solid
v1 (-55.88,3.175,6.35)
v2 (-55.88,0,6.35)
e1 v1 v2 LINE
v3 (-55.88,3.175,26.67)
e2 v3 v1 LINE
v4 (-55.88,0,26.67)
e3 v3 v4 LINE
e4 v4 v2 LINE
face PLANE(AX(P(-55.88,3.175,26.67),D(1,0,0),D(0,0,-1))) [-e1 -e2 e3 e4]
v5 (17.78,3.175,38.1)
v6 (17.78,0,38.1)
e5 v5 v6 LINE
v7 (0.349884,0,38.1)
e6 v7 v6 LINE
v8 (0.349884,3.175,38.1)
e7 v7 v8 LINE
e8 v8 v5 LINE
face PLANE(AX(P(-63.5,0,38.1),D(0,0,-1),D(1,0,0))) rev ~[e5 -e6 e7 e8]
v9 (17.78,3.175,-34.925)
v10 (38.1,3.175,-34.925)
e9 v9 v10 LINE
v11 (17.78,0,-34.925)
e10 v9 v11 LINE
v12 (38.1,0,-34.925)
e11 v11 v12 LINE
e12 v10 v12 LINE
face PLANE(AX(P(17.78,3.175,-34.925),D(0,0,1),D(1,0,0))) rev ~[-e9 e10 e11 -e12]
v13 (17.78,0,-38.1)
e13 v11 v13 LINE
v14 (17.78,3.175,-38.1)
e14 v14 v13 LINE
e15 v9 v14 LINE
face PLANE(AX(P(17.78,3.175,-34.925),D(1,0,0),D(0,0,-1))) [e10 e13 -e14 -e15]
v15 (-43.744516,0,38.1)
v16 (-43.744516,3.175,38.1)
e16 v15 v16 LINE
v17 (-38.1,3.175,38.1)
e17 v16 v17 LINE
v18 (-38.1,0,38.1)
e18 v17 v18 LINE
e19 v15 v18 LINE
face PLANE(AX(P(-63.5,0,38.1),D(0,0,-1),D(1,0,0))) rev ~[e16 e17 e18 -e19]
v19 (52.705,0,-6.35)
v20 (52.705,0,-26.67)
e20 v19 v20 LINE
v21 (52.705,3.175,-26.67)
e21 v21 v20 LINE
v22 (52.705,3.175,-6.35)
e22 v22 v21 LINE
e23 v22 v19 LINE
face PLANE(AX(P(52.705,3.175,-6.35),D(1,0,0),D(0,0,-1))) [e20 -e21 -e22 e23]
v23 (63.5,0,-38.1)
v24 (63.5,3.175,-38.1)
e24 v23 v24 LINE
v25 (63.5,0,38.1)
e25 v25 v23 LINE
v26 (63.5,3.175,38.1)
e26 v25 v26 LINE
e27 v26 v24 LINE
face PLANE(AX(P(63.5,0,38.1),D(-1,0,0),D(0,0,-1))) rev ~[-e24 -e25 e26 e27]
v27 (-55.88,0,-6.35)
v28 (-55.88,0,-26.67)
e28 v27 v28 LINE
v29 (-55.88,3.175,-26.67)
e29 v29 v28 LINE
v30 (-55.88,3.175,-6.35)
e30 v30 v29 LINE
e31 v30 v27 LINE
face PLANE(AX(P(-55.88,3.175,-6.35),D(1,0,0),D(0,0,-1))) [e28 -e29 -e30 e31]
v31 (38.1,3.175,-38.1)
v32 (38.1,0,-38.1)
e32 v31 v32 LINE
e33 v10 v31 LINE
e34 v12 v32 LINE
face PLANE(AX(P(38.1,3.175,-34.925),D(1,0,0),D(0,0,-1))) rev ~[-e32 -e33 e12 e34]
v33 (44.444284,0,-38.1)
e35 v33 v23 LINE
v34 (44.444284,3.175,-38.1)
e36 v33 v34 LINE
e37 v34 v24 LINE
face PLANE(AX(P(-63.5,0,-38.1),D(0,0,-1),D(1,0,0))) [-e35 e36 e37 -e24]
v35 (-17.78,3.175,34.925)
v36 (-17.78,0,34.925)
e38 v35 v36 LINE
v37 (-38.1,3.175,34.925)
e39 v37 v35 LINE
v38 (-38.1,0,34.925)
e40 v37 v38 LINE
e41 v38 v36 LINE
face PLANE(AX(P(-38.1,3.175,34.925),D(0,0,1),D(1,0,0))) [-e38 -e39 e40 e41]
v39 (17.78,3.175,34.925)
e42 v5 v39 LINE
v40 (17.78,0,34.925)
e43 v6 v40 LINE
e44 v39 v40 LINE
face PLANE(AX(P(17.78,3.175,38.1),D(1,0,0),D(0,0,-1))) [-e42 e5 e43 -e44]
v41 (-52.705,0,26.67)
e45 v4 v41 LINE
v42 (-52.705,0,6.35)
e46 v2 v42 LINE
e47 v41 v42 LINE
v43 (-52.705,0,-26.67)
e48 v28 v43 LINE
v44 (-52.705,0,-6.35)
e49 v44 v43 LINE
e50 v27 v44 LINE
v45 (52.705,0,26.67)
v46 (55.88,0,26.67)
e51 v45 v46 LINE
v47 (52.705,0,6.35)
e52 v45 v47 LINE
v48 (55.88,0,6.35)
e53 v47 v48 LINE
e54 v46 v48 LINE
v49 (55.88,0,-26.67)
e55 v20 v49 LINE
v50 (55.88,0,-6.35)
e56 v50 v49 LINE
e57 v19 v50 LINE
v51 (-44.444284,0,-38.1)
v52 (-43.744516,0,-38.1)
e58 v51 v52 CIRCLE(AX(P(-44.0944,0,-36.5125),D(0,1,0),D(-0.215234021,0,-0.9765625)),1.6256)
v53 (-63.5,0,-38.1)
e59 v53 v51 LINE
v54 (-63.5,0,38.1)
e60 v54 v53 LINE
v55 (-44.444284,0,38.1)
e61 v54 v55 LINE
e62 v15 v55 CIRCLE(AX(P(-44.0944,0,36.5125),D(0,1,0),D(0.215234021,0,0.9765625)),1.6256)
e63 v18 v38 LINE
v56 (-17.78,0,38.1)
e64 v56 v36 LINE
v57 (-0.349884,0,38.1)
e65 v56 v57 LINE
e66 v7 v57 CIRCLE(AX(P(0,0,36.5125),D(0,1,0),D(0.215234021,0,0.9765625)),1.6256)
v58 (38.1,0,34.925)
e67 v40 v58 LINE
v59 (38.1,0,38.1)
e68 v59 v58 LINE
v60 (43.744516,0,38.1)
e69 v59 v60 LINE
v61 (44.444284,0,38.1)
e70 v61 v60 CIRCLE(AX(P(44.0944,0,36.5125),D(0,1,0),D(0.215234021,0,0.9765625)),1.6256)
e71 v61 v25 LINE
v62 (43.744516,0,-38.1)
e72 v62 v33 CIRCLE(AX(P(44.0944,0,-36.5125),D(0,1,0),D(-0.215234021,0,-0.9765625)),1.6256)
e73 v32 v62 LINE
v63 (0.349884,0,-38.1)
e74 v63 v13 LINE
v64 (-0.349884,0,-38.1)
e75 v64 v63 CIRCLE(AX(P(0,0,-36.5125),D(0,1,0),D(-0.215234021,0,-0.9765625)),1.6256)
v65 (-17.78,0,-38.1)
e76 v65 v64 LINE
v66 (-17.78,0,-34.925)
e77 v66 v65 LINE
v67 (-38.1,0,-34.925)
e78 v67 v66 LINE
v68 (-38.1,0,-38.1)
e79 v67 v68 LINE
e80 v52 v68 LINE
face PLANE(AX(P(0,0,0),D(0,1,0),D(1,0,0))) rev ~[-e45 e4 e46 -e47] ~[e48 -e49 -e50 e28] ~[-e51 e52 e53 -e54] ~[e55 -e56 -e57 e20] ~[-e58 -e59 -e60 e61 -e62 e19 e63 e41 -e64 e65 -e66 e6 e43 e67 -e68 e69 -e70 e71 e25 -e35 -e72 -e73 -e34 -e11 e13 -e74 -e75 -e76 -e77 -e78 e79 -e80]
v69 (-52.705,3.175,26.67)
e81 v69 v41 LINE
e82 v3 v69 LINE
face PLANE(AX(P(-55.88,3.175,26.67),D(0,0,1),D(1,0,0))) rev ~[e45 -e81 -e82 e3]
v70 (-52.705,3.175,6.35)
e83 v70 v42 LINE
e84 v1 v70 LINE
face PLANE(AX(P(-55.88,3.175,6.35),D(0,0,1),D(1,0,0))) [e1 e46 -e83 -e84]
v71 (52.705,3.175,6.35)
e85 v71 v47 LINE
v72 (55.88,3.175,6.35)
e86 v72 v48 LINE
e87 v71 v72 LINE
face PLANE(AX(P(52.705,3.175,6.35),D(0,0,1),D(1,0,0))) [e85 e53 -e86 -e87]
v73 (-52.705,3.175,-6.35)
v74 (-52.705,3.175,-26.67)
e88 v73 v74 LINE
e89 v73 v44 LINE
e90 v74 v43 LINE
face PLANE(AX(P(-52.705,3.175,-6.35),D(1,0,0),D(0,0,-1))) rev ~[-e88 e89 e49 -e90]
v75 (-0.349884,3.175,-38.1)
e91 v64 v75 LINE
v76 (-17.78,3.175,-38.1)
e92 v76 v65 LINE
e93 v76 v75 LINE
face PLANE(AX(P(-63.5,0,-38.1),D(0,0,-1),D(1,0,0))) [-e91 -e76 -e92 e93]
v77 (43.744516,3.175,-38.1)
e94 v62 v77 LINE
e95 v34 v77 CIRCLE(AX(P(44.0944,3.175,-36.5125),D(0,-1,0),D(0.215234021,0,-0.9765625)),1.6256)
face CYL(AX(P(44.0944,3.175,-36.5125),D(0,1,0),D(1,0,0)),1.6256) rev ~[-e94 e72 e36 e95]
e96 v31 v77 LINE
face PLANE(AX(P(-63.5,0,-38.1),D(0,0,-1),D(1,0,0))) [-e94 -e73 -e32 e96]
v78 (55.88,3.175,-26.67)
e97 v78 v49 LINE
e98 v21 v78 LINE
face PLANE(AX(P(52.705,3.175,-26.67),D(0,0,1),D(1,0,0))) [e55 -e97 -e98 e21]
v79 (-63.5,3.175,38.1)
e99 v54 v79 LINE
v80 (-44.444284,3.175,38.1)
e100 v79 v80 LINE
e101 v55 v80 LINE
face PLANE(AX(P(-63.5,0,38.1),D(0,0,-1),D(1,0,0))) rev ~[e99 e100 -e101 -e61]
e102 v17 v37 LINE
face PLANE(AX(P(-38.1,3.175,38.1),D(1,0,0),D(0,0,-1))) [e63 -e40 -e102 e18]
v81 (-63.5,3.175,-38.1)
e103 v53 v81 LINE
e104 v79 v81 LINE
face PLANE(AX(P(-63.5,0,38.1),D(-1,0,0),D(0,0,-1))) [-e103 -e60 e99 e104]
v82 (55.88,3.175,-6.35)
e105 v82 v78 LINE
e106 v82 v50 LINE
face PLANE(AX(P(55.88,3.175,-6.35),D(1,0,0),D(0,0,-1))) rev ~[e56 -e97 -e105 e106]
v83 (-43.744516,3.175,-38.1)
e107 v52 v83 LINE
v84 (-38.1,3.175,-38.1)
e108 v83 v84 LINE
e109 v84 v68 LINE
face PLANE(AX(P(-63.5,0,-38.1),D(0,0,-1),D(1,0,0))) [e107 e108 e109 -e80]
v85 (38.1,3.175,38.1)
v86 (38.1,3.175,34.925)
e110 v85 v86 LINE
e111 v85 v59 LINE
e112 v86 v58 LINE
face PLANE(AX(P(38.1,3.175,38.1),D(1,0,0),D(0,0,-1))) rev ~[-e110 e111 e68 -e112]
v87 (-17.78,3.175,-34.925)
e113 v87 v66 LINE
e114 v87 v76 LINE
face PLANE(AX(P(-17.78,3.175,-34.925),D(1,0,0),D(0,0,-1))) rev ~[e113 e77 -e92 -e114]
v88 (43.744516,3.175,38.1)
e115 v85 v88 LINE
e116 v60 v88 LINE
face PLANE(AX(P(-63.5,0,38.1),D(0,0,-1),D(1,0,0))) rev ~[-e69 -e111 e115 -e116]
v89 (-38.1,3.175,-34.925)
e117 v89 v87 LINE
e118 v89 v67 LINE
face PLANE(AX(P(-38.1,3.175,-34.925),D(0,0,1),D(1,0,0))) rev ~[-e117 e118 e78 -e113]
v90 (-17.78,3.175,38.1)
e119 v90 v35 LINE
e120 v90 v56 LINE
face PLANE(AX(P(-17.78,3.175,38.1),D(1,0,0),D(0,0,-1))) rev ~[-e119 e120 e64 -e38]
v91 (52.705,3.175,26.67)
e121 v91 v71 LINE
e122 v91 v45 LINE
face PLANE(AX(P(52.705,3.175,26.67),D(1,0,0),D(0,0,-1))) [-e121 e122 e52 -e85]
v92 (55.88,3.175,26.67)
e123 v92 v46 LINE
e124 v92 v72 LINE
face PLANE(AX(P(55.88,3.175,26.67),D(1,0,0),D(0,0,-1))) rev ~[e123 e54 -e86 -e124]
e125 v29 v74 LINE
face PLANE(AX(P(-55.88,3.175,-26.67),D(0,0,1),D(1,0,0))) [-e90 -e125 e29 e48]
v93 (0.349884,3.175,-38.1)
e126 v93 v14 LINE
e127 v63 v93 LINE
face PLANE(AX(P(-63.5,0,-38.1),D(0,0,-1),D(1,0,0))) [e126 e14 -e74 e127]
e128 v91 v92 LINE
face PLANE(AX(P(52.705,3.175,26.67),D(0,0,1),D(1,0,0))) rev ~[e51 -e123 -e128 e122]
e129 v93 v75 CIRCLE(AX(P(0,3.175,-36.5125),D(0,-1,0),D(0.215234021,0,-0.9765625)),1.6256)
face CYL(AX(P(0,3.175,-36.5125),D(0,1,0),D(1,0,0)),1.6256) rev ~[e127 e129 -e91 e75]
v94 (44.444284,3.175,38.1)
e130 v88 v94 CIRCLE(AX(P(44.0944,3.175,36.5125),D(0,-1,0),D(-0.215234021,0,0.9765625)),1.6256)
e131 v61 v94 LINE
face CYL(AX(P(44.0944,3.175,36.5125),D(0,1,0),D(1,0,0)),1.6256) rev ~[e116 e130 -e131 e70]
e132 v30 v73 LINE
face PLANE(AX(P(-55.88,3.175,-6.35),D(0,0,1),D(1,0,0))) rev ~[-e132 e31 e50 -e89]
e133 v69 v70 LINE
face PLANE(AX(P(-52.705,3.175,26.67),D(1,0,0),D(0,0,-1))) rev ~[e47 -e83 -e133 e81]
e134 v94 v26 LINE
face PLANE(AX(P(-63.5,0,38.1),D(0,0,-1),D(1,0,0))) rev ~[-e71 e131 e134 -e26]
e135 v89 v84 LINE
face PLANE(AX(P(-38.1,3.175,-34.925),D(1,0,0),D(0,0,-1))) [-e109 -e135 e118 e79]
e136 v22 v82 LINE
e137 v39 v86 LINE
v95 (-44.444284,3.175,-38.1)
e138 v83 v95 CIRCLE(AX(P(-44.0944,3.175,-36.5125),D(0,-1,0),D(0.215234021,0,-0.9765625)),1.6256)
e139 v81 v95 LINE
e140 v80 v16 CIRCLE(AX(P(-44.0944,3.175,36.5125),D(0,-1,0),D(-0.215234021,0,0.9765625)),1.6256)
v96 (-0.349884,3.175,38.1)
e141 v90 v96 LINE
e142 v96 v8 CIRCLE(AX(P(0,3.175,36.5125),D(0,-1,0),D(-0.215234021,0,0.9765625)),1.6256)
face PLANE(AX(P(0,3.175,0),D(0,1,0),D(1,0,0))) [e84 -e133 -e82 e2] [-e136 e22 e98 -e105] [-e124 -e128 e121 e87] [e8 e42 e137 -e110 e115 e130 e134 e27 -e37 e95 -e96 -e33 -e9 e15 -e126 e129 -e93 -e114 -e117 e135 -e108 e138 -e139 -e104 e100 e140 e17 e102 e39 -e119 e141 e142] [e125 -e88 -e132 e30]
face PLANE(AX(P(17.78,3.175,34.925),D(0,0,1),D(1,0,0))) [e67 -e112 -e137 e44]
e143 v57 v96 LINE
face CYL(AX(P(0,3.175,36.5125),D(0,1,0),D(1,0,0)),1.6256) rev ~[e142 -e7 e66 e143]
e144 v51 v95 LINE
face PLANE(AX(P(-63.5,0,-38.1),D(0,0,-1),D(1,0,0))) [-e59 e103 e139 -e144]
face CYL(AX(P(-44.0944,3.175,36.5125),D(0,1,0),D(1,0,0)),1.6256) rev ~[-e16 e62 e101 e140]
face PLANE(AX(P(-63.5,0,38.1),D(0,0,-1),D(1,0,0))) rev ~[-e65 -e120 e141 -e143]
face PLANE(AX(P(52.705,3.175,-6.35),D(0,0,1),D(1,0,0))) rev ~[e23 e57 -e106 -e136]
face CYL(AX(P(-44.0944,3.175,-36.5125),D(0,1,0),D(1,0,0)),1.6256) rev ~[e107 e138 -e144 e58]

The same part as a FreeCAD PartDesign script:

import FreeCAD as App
import Part
import Sketcher

V = App.Vector
Q = App.Units.Quantity


def add_polygon(sketch, points):
    """Adds a closed chain of lines whose ends are joined by coincident constraints."""
    first, n = sketch.GeometryCount, len(points)
    for a, b in zip(points, points[1:] + points[:1]):
        sketch.addGeometry(Part.LineSegment(App.Vector(*a, 0), App.Vector(*b, 0)), False)
    for i in range(n):
        sketch.addConstraint(Sketcher.Constraint("Coincident", first + i, 2, first + (i + 1) % n, 1))

doc = App.newDocument("Part")
body = doc.addObject("PartDesign::Body", "Body")

# Sketch on XZ plane
sketch1 = body.newObject("Sketcher::SketchObject", "Sketch")
sketch1.AttachmentSupport = (doc.getObject("XZ_Plane"), [""])
sketch1.MapMode = "FlatFace"
add_polygon(sketch1, [(-64, -38), (-64, 38), (64, 38), (64, -38)])  # lines 0-3
sketch1.addConstraint([
    Sketcher.Constraint("Vertical", 0),
    Sketcher.Constraint("Horizontal", 1),
    Sketcher.Constraint("Vertical", 2),
    Sketcher.Constraint("Horizontal", 3),
    Sketcher.Constraint("Symmetric", 0, 2, 2, 2, -1, 1),
    Sketcher.Constraint("DistanceX", 1, 1, 1, 2, Q("5 in")),
    Sketcher.Constraint("DistanceY", 0, 1, 0, 2, Q("3 in")),
])
pad1 = body.newObject("PartDesign::Pad", "Pad")
pad1.Profile = sketch1
pad1.Length = Q("0.125 in")
pad1.Reversed = True

# Sketch on XZ plane
sketch2 = body.newObject("Sketcher::SketchObject", "Sketch001")
sketch2.AttachmentSupport = (doc.getObject("XZ_Plane"), [""])
sketch2.MapMode = "FlatFace"
sketch2.AttachmentOffset = App.Placement(V(0, 0, -0.125 * 25.4), App.Rotation())
add_polygon(sketch2, [(-55.9, -26.7), (-55.9, -6.3), (-52.7, -6.3), (-52.7, -26.7)])  # lines 0-3
add_polygon(sketch2, [(-55.9, 6.3), (-55.9, 26.7), (-52.7, 26.7), (-52.7, 6.3)])  # lines 4-7
add_polygon(sketch2, [(52.7, 6.3), (52.7, 26.7), (55.9, 26.7), (55.9, 6.3)])  # lines 8-11
add_polygon(sketch2, [(52.7, -26.7), (52.7, -6.3), (55.9, -6.3), (55.9, -26.7)])  # lines 12-15
sketch2.addConstraint([
    Sketcher.Constraint("Vertical", 0),
    Sketcher.Constraint("Horizontal", 1),
    Sketcher.Constraint("Vertical", 2),
    Sketcher.Constraint("Horizontal", 3),
    Sketcher.Constraint("Vertical", 4),
    Sketcher.Constraint("Horizontal", 5),
    Sketcher.Constraint("Vertical", 6),
    Sketcher.Constraint("Horizontal", 7),
    Sketcher.Constraint("Vertical", 8),
    Sketcher.Constraint("Horizontal", 9),
    Sketcher.Constraint("Vertical", 10),
    Sketcher.Constraint("Horizontal", 11),
    Sketcher.Constraint("Vertical", 12),
    Sketcher.Constraint("Horizontal", 13),
    Sketcher.Constraint("Vertical", 14),
    Sketcher.Constraint("Horizontal", 15),
    Sketcher.Constraint("Symmetric", 2, 2, 8, 2, -1, 1),
    Sketcher.Constraint("Symmetric", 0, 2, 10, 2, -1, 1),
    Sketcher.Constraint("Symmetric", 6, 2, 12, 2, -1, 1),
    Sketcher.Constraint("Symmetric", 4, 2, 14, 2, -1, 1),
    Sketcher.Constraint("Symmetric", 5, 2, 8, 2, -2),
    Sketcher.Constraint("Symmetric", 7, 2, 10, 2, -2),
    Sketcher.Constraint("DistanceY", 0, 1, 0, 2, Q("0.8 in")),
    Sketcher.Constraint("DistanceX", 0, 2, -1, 1, Q("2.2 in")),
    Sketcher.Constraint("DistanceY", 0, 2, 4, 2, Q("1.3 in")),
    Sketcher.Constraint("DistanceX", 1, 1, 1, 2, Q("0.125 in")),
])
pocket1 = body.newObject("PartDesign::Pocket", "Pocket")
pocket1.Profile = sketch2
pocket1.Length = Q("0.125 in")
pocket1.Reversed = True

# Sketch on XZ plane
sketch3 = body.newObject("Sketcher::SketchObject", "Sketch002")
sketch3.AttachmentSupport = (doc.getObject("XZ_Plane"), [""])
sketch3.MapMode = "FlatFace"
sketch3.AttachmentOffset = App.Placement(V(0, 0, -0.125 * 25.4), App.Rotation())
add_polygon(sketch3, [(-38.1, -38.1), (-38.1, -34.9), (-17.8, -34.9), (-17.8, -38.1)])  # lines 0-3
add_polygon(sketch3, [(17.8, -38.1), (17.8, -34.9), (38.1, -34.9), (38.1, -38.1)])  # lines 4-7
add_polygon(sketch3, [(17.8, 34.9), (17.8, 38.1), (38.1, 38.1), (38.1, 34.9)])  # lines 8-11
add_polygon(sketch3, [(-38.1, 34.9), (-38.1, 38.1), (-17.8, 38.1), (-17.8, 34.9)])  # lines 12-15
sketch3.addConstraint([
    Sketcher.Constraint("Vertical", 0),
    Sketcher.Constraint("Horizontal", 1),
    Sketcher.Constraint("Vertical", 2),
    Sketcher.Constraint("Horizontal", 3),
    Sketcher.Constraint("Vertical", 4),
    Sketcher.Constraint("Horizontal", 5),
    Sketcher.Constraint("Vertical", 6),
    Sketcher.Constraint("Horizontal", 7),
    Sketcher.Constraint("Vertical", 8),
    Sketcher.Constraint("Horizontal", 9),
    Sketcher.Constraint("Vertical", 10),
    Sketcher.Constraint("Horizontal", 11),
    Sketcher.Constraint("Vertical", 12),
    Sketcher.Constraint("Horizontal", 13),
    Sketcher.Constraint("Vertical", 14),
    Sketcher.Constraint("Horizontal", 15),
    Sketcher.Constraint("Symmetric", 2, 2, 8, 2, -1, 1),
    Sketcher.Constraint("Symmetric", 0, 2, 10, 2, -1, 1),
    Sketcher.Constraint("Symmetric", 6, 2, 12, 2, -1, 1),
    Sketcher.Constraint("Symmetric", 4, 2, 14, 2, -1, 1),
    Sketcher.Constraint("Symmetric", 1, 2, 4, 2, -2),
    Sketcher.Constraint("Symmetric", 3, 2, 6, 2, -2),
    Sketcher.Constraint("DistanceX", 1, 1, 1, 2, Q("0.8 in")),
    Sketcher.Constraint("DistanceX", 0, 2, 5, 2, Q("3 in")),
    Sketcher.Constraint("DistanceY", 7, 2, 8, 2, Q("3 in")),
    Sketcher.Constraint("DistanceY", 0, 1, 0, 2, Q("0.125 in")),
])
pocket2 = body.newObject("PartDesign::Pocket", "Pocket001")
pocket2.Profile = sketch3
pocket2.Length = Q("0.125 in")
pocket2.Reversed = True

# Sketch on XZ plane
sketch4 = body.newObject("Sketcher::SketchObject", "Sketch003")
sketch4.AttachmentSupport = (doc.getObject("XZ_Plane"), [""])
sketch4.MapMode = "FlatFace"
sketch4.AttachmentOffset = App.Placement(V(0, 0, -0.125 * 25.4), App.Rotation())
sketch4.addGeometry([
    Part.Circle(V(-44.1, -36.5, 0), V(0, 0, 1), 1.6),  # 0
    Part.Circle(V(0, -36.5, 0), V(0, 0, 1), 1.6),  # 1
    Part.Circle(V(44.1, -36.5, 0), V(0, 0, 1), 1.6),  # 2
    Part.Circle(V(44.1, 36.5, 0), V(0, 0, 1), 1.6),  # 3
    Part.Circle(V(0, 36.5, 0), V(0, 0, 1), 1.6),  # 4
    Part.Circle(V(-44.1, 36.5, 0), V(0, 0, 1), 1.6),  # 5
], False)
sketch4.addConstraint([
    Sketcher.Constraint("Equal", 0, 1),
    Sketcher.Constraint("Equal", 1, 2),
    Sketcher.Constraint("Equal", 2, 3),
    Sketcher.Constraint("Equal", 3, 4),
    Sketcher.Constraint("Equal", 4, 5),
    Sketcher.Constraint("Symmetric", 0, 3, 3, 3, -1, 1),
    Sketcher.Constraint("Symmetric", 1, 3, 4, 3, -1, 1),
    Sketcher.Constraint("Symmetric", 2, 3, 5, 3, -1, 1),
    Sketcher.Constraint("Symmetric", 0, 3, 2, 3, -2),
    Sketcher.Constraint("PointOnObject", 1, 3, -2),
    Sketcher.Constraint("Horizontal", 0, 3, 1, 3),
    Sketcher.Constraint("Diameter", 0, Q("0.128 in")),
    Sketcher.Constraint("DistanceX", 0, 3, -1, 1, Q("1.736 in")),
    Sketcher.Constraint("DistanceY", 0, 3, -1, 1, Q("1.4375 in")),
])
pocket3 = body.newObject("PartDesign::Pocket", "Pocket002")
pocket3.Profile = sketch4
pocket3.Length = Q("0.125 in")
pocket3.Reversed = True

doc.recompute()
